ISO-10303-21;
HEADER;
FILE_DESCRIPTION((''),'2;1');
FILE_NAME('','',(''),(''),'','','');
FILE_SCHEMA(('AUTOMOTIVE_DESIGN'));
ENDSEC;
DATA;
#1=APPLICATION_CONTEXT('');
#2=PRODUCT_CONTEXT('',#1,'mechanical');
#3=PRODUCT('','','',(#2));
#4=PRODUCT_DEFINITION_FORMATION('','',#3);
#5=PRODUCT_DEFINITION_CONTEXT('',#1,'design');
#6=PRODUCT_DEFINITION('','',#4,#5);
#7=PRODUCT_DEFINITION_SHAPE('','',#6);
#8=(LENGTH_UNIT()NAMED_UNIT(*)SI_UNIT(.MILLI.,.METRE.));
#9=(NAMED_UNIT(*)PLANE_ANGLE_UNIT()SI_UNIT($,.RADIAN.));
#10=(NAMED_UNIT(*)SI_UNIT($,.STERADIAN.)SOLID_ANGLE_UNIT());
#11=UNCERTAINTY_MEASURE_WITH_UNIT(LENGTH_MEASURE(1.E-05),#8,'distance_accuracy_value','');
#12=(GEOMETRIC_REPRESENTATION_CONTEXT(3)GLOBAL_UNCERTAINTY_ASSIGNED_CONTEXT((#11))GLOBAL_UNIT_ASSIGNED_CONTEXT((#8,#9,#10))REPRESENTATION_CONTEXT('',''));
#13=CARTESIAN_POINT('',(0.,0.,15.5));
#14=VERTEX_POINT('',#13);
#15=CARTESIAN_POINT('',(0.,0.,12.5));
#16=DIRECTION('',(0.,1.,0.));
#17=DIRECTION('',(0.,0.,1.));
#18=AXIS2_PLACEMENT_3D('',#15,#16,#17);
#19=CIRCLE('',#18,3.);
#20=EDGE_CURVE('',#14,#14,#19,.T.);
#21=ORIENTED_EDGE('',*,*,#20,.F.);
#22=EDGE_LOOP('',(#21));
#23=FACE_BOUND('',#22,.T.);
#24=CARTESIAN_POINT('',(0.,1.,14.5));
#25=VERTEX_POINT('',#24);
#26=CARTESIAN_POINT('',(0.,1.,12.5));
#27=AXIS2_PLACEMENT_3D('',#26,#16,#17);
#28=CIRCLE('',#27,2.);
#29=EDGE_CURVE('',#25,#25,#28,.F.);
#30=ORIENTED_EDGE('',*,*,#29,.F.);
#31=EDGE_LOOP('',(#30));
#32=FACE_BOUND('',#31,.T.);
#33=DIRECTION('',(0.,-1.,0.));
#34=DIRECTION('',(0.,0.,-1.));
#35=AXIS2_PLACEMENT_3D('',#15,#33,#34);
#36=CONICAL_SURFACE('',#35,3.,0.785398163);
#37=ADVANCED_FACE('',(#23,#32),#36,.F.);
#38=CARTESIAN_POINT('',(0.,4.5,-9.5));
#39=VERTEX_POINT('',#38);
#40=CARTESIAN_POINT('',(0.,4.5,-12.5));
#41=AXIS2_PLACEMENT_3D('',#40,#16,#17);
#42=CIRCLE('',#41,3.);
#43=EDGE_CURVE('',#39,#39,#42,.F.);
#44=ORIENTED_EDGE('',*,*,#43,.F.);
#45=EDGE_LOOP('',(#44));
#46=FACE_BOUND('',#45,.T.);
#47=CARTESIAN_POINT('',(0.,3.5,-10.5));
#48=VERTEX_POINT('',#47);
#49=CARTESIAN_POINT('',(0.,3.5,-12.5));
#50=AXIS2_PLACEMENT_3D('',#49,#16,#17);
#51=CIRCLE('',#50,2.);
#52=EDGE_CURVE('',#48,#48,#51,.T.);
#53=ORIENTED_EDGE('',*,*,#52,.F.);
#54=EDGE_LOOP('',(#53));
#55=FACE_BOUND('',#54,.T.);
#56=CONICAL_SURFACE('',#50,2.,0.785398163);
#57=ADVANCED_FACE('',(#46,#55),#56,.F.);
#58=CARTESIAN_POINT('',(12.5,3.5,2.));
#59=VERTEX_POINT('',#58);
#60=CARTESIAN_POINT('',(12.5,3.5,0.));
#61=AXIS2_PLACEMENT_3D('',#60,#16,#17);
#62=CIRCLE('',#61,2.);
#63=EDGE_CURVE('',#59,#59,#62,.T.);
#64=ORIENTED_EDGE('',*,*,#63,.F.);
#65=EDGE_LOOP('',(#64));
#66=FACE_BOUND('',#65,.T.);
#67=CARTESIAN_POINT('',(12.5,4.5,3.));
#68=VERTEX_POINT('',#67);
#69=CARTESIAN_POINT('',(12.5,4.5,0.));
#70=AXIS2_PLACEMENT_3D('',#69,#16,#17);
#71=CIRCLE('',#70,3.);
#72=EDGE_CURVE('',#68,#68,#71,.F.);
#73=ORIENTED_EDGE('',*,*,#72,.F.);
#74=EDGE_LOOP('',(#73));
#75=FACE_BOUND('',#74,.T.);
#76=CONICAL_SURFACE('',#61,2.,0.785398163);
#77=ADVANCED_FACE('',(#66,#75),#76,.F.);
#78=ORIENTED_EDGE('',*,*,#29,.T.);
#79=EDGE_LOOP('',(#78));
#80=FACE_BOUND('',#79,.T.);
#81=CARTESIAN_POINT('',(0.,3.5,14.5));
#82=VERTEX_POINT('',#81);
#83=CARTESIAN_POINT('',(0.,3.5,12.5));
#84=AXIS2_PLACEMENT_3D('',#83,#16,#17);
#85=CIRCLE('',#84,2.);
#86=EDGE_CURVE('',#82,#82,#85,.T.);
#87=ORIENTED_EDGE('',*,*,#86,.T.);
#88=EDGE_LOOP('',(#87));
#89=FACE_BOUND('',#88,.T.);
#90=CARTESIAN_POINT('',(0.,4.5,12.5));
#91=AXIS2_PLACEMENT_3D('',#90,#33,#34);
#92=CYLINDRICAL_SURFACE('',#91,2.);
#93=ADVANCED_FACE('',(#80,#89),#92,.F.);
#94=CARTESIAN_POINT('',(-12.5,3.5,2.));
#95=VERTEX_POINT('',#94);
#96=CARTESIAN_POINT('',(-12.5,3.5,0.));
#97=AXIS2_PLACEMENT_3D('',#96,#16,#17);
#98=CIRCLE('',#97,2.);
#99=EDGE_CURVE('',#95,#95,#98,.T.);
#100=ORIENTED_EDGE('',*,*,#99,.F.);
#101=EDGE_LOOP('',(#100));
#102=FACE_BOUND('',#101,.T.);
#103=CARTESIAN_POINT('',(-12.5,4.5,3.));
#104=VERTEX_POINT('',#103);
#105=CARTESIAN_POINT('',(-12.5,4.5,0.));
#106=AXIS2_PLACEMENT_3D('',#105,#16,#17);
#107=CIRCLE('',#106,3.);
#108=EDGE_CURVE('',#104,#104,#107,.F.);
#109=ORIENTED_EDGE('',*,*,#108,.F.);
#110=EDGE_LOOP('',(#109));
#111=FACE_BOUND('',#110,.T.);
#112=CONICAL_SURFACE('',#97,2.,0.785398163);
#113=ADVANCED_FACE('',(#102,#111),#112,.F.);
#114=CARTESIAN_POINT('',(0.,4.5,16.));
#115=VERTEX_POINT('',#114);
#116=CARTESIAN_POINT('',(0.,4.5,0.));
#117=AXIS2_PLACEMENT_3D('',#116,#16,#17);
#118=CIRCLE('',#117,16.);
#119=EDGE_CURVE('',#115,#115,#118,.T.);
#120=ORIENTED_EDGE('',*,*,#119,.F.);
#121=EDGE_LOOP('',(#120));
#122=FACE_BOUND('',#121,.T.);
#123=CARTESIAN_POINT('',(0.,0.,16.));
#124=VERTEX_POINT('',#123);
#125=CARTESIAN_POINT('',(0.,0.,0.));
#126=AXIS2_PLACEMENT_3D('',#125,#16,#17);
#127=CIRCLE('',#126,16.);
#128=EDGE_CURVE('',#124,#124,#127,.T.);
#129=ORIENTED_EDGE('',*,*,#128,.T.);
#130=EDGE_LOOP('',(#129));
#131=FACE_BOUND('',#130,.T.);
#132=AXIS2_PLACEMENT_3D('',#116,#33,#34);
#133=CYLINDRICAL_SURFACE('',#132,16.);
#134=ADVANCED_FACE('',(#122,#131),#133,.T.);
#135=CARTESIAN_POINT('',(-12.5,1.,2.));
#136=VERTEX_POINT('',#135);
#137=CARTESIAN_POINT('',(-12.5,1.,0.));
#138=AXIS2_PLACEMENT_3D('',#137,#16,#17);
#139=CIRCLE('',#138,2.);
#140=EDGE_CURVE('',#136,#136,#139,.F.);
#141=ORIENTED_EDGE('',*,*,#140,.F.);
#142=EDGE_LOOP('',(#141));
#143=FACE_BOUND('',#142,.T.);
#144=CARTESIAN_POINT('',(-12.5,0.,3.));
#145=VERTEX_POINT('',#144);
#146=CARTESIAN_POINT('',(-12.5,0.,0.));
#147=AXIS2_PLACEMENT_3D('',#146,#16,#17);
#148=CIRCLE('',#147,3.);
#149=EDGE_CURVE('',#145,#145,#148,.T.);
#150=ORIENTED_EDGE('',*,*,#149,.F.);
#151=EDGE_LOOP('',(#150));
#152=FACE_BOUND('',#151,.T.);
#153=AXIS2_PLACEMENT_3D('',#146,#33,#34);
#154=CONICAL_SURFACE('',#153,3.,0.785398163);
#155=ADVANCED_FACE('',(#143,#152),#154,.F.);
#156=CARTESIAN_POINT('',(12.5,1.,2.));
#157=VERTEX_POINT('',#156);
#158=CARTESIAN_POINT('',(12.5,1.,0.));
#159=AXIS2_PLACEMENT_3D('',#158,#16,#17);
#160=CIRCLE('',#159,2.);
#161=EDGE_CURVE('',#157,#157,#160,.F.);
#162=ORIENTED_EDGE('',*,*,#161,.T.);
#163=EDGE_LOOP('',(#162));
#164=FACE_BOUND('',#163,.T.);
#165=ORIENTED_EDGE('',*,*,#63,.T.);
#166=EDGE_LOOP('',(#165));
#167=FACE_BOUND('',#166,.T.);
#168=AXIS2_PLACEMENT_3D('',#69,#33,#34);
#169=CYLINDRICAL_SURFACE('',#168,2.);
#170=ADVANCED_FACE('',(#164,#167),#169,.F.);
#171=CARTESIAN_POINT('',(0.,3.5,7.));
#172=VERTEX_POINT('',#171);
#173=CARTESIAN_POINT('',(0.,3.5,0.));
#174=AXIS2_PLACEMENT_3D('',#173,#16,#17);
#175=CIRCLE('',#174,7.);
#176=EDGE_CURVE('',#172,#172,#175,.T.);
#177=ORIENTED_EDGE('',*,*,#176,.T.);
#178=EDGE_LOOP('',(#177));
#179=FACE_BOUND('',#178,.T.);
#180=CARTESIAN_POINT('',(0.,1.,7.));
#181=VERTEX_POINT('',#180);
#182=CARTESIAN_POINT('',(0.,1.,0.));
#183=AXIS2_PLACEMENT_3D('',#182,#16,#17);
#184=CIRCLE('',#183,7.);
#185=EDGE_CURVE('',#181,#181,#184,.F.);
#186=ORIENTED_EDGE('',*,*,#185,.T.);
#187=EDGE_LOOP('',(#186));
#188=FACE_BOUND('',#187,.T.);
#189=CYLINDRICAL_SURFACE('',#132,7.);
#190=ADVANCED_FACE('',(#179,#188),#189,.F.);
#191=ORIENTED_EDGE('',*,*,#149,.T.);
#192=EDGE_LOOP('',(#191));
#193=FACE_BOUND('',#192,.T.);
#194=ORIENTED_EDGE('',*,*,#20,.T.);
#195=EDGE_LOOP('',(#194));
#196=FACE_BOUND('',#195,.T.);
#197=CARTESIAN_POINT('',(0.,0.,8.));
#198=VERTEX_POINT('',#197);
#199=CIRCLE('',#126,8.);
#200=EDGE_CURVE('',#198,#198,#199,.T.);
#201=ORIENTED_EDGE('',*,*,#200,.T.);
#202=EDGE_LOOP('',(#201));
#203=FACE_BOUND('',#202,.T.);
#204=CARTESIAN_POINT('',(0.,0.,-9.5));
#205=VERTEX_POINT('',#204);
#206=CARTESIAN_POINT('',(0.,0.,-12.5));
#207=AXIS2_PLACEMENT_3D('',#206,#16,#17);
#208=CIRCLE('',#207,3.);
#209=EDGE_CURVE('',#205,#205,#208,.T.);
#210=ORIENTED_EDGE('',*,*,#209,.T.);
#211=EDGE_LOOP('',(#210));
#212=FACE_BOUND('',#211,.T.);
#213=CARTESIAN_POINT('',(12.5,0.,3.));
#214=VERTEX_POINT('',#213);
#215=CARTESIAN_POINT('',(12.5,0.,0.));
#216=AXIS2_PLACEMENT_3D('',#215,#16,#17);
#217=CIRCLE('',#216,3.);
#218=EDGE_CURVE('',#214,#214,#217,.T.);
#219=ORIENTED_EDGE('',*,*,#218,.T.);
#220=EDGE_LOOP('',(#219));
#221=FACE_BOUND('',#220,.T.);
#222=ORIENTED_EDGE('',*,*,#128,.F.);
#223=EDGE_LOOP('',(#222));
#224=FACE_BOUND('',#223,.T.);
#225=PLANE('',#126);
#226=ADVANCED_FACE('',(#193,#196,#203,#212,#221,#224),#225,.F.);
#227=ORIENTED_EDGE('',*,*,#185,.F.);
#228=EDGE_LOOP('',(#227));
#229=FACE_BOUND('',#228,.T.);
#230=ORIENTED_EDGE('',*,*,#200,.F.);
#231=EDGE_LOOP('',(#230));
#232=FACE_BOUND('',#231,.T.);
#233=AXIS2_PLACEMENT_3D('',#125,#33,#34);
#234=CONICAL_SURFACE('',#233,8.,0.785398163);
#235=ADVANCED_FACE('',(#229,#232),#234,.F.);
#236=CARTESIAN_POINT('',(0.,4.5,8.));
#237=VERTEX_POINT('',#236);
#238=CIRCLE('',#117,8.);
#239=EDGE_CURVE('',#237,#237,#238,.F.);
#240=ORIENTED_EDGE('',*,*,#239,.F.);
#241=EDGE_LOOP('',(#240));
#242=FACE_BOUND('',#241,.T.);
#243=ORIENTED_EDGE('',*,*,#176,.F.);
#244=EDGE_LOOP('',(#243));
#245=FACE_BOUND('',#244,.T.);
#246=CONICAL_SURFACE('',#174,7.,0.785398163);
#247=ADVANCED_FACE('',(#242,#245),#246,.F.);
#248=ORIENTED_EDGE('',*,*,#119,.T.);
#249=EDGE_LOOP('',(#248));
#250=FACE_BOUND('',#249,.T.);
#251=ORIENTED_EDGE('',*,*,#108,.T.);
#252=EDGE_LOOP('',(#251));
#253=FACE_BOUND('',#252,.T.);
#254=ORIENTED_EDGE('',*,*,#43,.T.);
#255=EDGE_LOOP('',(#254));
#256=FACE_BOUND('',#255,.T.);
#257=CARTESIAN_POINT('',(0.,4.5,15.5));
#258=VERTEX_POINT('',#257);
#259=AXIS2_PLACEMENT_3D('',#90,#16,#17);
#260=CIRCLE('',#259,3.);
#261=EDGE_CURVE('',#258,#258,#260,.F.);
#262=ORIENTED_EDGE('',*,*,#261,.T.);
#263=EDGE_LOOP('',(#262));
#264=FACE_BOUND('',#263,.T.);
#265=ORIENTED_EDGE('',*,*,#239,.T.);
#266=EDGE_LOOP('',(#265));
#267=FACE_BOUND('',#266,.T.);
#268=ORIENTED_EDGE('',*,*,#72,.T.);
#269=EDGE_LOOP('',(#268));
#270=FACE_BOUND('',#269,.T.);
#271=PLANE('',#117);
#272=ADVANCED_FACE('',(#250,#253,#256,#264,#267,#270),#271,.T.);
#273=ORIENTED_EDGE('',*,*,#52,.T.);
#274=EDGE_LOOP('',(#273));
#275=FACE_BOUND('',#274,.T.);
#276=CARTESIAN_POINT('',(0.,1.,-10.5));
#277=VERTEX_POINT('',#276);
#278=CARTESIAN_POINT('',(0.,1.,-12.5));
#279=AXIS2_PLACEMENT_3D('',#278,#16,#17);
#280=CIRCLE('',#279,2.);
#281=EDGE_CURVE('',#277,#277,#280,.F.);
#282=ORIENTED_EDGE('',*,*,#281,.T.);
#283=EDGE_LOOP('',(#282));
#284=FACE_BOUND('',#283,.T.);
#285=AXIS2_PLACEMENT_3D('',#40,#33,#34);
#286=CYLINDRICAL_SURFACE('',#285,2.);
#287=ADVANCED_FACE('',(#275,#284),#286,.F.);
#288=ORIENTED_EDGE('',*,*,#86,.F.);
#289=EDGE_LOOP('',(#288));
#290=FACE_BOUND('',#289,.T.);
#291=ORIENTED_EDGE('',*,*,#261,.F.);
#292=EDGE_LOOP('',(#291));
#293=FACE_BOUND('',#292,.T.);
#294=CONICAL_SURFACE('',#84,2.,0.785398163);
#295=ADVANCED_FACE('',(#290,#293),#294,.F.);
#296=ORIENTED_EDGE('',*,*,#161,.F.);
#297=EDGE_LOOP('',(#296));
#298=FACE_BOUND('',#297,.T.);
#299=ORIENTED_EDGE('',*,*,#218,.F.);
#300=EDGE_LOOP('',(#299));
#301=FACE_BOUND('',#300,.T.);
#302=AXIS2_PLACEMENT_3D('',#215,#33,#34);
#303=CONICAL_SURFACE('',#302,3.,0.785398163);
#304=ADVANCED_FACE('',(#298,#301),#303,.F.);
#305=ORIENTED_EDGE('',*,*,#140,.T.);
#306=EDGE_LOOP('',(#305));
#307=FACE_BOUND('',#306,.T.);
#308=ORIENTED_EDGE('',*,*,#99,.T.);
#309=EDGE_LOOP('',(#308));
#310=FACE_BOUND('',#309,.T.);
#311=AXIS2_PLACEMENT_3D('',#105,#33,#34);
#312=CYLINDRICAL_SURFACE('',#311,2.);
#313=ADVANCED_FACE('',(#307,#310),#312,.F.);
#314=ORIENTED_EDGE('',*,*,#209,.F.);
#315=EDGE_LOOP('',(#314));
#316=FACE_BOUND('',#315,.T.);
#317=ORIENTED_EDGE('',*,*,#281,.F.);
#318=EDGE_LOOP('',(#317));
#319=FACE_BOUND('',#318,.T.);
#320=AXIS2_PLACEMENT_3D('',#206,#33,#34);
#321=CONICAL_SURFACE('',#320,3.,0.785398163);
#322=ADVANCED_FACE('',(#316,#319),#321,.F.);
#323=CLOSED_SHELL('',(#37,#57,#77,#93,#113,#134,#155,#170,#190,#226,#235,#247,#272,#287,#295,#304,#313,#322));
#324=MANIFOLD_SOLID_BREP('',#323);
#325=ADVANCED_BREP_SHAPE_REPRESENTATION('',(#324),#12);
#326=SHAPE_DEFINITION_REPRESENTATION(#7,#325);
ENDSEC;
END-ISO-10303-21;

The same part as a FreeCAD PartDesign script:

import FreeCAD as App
import Part
import Sketcher
from FreeCAD import Vector
Q = App.Units.Quantity


def edges_at(feature, points):
    """Names of the edges that pass closest to the given points."""
    edges = feature.Shape.Edges
    near = lambda p: min(range(len(edges)), key=lambda i: edges[i].distToShape(Part.Vertex(*p))[0])
    return sorted({f"Edge{near(p) + 1}" for p in points})

doc = App.newDocument("Part")
params = doc.addObject("Spreadsheet::Sheet", "Params")
for row, (alias, value) in enumerate([
    ("sketch1_diameter", "32 mm"),
    ("sketch1_diameter2", "4 mm"),
    ("sketch1_diameter3", "14 mm"),
    ("pad1_length", "4.5 mm"),
    ("chamfer_size", "1 mm"),
], start=1):
    params.set(f"A{row}", alias)
    params.set(f"B{row}", "=" + value)
    params.setAlias(f"B{row}", alias)

body = doc.addObject("PartDesign::Body", "Body")

# Sketch on XZ plane
sketch1 = body.newObject("Sketcher::SketchObject", "Sketch")
sketch1.AttachmentSupport = (doc.getObject("XZ_Plane"), [""])
sketch1.MapMode = "FlatFace"
sketch1.addGeometry([
    Part.Circle(Vector(0, 0, 0), Vector(0, 0, 1), 16),  # 0
    Part.Circle(Vector(0, 12.5, 0), Vector(0, 0, 1), 2),  # 1
    Part.Circle(Vector(-12.5, 0, 0), Vector(0, 0, 1), 2),  # 2
    Part.Circle(Vector(0, 0, 0), Vector(0, 0, 1), 7),  # 3
    Part.Circle(Vector(12.5, 0, 0), Vector(0, 0, 1), 2),  # 4
    Part.Circle(Vector(0, -12.5, 0), Vector(0, 0, 1), 2),  # 5
], False)
sketch1.addConstraint([
    Sketcher.Constraint("Coincident", 0, 3, -1, 1),
    Sketcher.Constraint("Coincident", 3, 3, -1, 1),
    Sketcher.Constraint("Equal", 1, 2),
    Sketcher.Constraint("Equal", 2, 4),
    Sketcher.Constraint("Equal", 4, 5),
    Sketcher.Constraint("Symmetric", 2, 3, 4, 3, -1, 1),
    Sketcher.Constraint("Symmetric", 1, 3, 5, 3, -1, 1),
    Sketcher.Constraint("PointOnObject", 1, 3, -2),
    Sketcher.Constraint("PointOnObject", 2, 3, -1),
    Sketcher.Constraint("Diameter", 0, Q("32 mm")),
    Sketcher.Constraint("Diameter", 1, Q("4 mm")),
    Sketcher.Constraint("Diameter", 3, Q("14 mm")),
    Sketcher.Constraint("DistanceX", 2, 3, 4, 3, Q("25 mm")),
    Sketcher.Constraint("DistanceY", 5, 3, 1, 3, Q("25 mm")),
])
sketch1.setExpression("Constraints[9]", "Params.sketch1_diameter")
sketch1.setExpression("Constraints[10]", "Params.sketch1_diameter2")
sketch1.setExpression("Constraints[11]", "Params.sketch1_diameter3")
pad1 = body.newObject("PartDesign::Pad", "Pad")
pad1.Profile = sketch1
pad1.setExpression("Length", "Params.pad1_length")
pad1.Reversed = True
doc.recompute()

chamfer = body.newObject("PartDesign::Chamfer", "Chamfer")
chamfer.Base = (pad1, edges_at(pad1, [
    (10.5, 0, 0),
    (10.5, 4.5, 0),
    (-2, 0, 12.5),
    (-2, 4.5, 12.5),
    (-14.5, 0, 0),
    (-14.5, 4.5, 0),
    (-7, 0, 0),
    (-7, 4.5, 0),
    (-2, 0, -12.5),
    (-2, 4.5, -12.5),
]))
chamfer.setExpression("Size", "Params.chamfer_size")

doc.recompute()
